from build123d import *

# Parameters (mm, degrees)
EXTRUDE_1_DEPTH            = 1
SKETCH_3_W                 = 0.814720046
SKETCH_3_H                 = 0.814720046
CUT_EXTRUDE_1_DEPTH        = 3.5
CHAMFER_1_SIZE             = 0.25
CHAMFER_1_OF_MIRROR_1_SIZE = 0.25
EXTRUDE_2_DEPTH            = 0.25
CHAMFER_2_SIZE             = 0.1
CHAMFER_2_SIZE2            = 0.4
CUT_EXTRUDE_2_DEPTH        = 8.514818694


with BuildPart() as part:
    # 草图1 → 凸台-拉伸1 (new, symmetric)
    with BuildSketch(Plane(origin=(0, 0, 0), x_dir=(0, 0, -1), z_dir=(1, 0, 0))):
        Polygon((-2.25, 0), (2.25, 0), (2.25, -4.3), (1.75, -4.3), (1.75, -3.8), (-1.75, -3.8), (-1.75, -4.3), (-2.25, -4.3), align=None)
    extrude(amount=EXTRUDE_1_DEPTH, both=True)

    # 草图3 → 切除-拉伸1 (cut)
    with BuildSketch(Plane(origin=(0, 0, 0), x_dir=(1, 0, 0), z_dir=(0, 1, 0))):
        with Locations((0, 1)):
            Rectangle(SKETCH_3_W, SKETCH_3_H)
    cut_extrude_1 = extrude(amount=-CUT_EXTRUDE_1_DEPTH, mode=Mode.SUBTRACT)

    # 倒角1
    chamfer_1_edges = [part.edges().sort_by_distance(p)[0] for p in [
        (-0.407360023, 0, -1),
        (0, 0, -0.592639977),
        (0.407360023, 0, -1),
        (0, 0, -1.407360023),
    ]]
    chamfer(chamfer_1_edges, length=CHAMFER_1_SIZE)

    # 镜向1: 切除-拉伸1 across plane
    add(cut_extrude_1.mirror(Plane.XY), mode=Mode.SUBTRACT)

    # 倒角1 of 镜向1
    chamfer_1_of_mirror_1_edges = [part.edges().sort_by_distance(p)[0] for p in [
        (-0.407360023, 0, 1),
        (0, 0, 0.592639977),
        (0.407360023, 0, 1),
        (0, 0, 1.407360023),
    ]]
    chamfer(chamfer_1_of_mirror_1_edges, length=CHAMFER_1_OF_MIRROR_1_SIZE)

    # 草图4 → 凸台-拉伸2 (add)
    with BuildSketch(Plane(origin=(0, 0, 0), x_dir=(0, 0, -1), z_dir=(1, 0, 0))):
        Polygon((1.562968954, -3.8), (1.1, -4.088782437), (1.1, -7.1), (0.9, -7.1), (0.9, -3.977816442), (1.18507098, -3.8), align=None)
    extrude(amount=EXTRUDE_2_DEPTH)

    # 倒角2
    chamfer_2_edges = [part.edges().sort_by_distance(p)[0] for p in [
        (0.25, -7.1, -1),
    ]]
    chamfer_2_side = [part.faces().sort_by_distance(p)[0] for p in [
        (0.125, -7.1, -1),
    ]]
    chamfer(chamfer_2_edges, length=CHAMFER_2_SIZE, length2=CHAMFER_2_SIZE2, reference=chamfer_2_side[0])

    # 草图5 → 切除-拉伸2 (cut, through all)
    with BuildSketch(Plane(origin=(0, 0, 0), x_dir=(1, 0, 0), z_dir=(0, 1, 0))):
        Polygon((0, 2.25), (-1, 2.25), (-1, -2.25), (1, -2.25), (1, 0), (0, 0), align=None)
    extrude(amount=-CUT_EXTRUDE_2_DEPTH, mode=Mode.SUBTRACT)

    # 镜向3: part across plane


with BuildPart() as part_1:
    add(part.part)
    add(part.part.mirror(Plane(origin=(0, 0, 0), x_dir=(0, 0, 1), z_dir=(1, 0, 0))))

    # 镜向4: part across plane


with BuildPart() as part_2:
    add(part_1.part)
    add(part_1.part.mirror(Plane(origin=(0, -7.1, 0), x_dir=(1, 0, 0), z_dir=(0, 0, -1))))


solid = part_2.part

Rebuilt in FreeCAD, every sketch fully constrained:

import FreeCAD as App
import Part
import Sketcher

V = App.Vector
Q = App.Units.Quantity


def edges_at(feature, points):
    """Names of the edges that pass closest to the given points."""
    edges = feature.Shape.Edges
    near = lambda p: min(range(len(edges)), key=lambda i: edges[i].distToShape(Part.Vertex(*p))[0])
    return sorted({f"Edge{near(p) + 1}" for p in points})


def add_polygon(sketch, points):
    """Adds a closed chain of lines whose ends are joined by coincident constraints."""
    first, n = sketch.GeometryCount, len(points)
    for a, b in zip(points, points[1:] + points[:1]):
        sketch.addGeometry(Part.LineSegment(App.Vector(*a, 0), App.Vector(*b, 0)), False)
    for i in range(n):
        sketch.addConstraint(Sketcher.Constraint("Coincident", first + i, 2, first + (i + 1) % n, 1))

doc = App.newDocument("Part")
body = doc.addObject("PartDesign::Body", "Body")

# Sketch on YZ plane
sketch1 = body.newObject("Sketcher::SketchObject", "Sketch")
sketch1.AttachmentSupport = (doc.getObject("YZ_Plane"), [""])
sketch1.MapMode = "FlatFace"
add_polygon(sketch1, [(0, -2.2), (0, 2.2), (-4.3, 2.2), (-4.3, 1.8), (-3.8, 1.8), (-3.8, -1.8), (-4.3, -1.8), (-4.3, -2.2)])  # lines 0-7
sketch1.addConstraint([
    Sketcher.Constraint("Vertical", 0),
    Sketcher.Constraint("Horizontal", 1),
    Sketcher.Constraint("Vertical", 2),
    Sketcher.Constraint("Horizontal", 3),
    Sketcher.Constraint("Vertical", 4),
    Sketcher.Constraint("Horizontal", 5),
    Sketcher.Constraint("Vertical", 6),
    Sketcher.Constraint("Horizontal", 7),
    Sketcher.Constraint("Symmetric", 0, 2, 7, 2, -1, 1),
    Sketcher.Constraint("Symmetric", 2, 2, 5, 2, -1),
    Sketcher.Constraint("Equal", 5, 2),
    Sketcher.Constraint("DistanceX", 1, 2, 1, 1, Q("4.3 mm")),
    Sketcher.Constraint("DistanceX", 3, 1, 3, 2, Q("0.5 mm")),
    Sketcher.Constraint("DistanceY", 0, 1, 0, 2, Q("4.5 mm")),
])
pad1 = body.newObject("PartDesign::Pad", "Pad")
pad1.Profile = sketch1
pad1.Length = 2
pad1.Midplane = True

# Sketch on XZ plane
sketch2 = body.newObject("Sketcher::SketchObject", "Sketch001")
sketch2.AttachmentSupport = (doc.getObject("XZ_Plane"), [""])
sketch2.MapMode = "FlatFace"
add_polygon(sketch2, [(-0.4, -1.4), (-0.4, -0.6), (0.4, -0.6), (0.4, -1.4)])  # lines 0-3
sketch2.addConstraint([
    Sketcher.Constraint("Vertical", 0),
    Sketcher.Constraint("Horizontal", 1),
    Sketcher.Constraint("Vertical", 2),
    Sketcher.Constraint("Horizontal", 3),
    Sketcher.Constraint("Equal", 3, 0),
    Sketcher.Constraint("DistanceX", 1, 1, 1, 2, Q("0.81472 mm")),
    Sketcher.Constraint("DistanceX", 0, 2, -1, 1, Q("0.40736 mm")),
    Sketcher.Constraint("DistanceY", 0, 2, -1, 1, Q("0.59264 mm")),
])
pocket1 = body.newObject("PartDesign::Pocket", "Pocket")
pocket1.Profile = sketch2
pocket1.Length = 3.5
pocket1.Reversed = True
doc.recompute()

chamfer = body.newObject("PartDesign::Chamfer", "Chamfer")
chamfer.Base = (pocket1, edges_at(pocket1, [
    (-0.407, 0, -1),
    (0, 0, -0.593),
    (0.407, 0, -1),
    (0, 0, -1.407),
]))
chamfer.Size = 0.25
doc.recompute()

mirrored = body.newObject("PartDesign::Mirrored", "Mirrored")
mirrored.Originals = [pocket1]
mirrored.MirrorPlane = (doc.getObject("XY_Plane"), [""])
body.Tip = mirrored
doc.recompute()

chamfer2 = body.newObject("PartDesign::Chamfer", "Chamfer001")
chamfer2.Base = (mirrored, edges_at(mirrored, [
    (-0.407, 0, 1),
    (0, 0, 0.593),
    (0.407, 0, 1),
    (0, 0, 1.407),
]))
chamfer2.Size = 0.25

# Sketch on YZ plane
sketch3 = body.newObject("Sketcher::SketchObject", "Sketch002")
sketch3.AttachmentSupport = (doc.getObject("YZ_Plane"), [""])
sketch3.MapMode = "FlatFace"
add_polygon(sketch3, [(-4.09, -1.1), (-3.8, -1.56), (-3.8, -1.19), (-3.98, -0.9), (-7.1, -0.9), (-7.1, -1.1)])  # lines 0-5
sketch3.addConstraint([
    Sketcher.Constraint("Vertical", 1),
    Sketcher.Constraint("Horizontal", 3),
    Sketcher.Constraint("Vertical", 4),
    Sketcher.Constraint("Horizontal", 5),
    Sketcher.Constraint("Parallel", 0, 2),
    Sketcher.Constraint("DistanceY", 4, 2, 4, 1, Q("0.2 mm")),
    Sketcher.Constraint("DistanceX", 0, 2, -1, 1, Q("3.8 mm")),
    Sketcher.Constraint("DistanceY", 2, 2, -1, 1, Q("0.9 mm")),
    Sketcher.Constraint("DistanceX", 3, 2, -1, 1, Q("7.1 mm")),
    Sketcher.Constraint("Distance", 0, Q("0.545651 mm")),
    Sketcher.Constraint("DistanceX", 3, 2, 3, 1, Q("3.122184 mm")),
    Sketcher.Constraint("DistanceX", 5, 1, 5, 2, Q("3.011218 mm")),
])
pad2 = body.newObject("PartDesign::Pad", "Pad001")
pad2.Profile = sketch3
pad2.Length = 0.25
doc.recompute()

chamfer3 = body.newObject("PartDesign::Chamfer", "Chamfer002")
chamfer3.Base = (pad2, edges_at(pad2, [(0.25, -7.1, -1)]))
chamfer3.ChamferType = "Two distances"
chamfer3.Size = 0.1
chamfer3.Size2 = 0.4
chamfer3.FlipDirection = True

# Sketch on XZ plane
sketch4 = body.newObject("Sketcher::SketchObject", "Sketch003")
sketch4.AttachmentSupport = (doc.getObject("XZ_Plane"), [""])
sketch4.MapMode = "FlatFace"
add_polygon(sketch4, [(0, -2.2), (-1, -2.2), (-1, 2.2), (1, 2.2), (1, 0), (0, 0)])  # lines 0-5
sketch4.addConstraint([
    Sketcher.Constraint("Horizontal", 0),
    Sketcher.Constraint("Vertical", 1),
    Sketcher.Constraint("Horizontal", 2),
    Sketcher.Constraint("Vertical", 3),
    Sketcher.Constraint("Horizontal", 4),
    Sketcher.Constraint("Vertical", 5),
    Sketcher.Constraint("Coincident", 4, 2, -1, 1),
    Sketcher.Constraint("Symmetric", 0, 2, 2, 2, -1, 1),
    Sketcher.Constraint("DistanceX", 0, 2, 0, 1, Q("1 mm")),
    Sketcher.Constraint("DistanceY", 1, 1, 1, 2, Q("4.5 mm")),
])
pocket2 = body.newObject("PartDesign::Pocket", "Pocket001")
pocket2.Profile = sketch4
pocket2.Type = "ThroughAll"
pocket2.Reversed = True
body2 = doc.addObject("PartDesign::Body", "Body001")
doc.recompute()

body2.BaseFeature = body
doc.recompute()

mirroring = doc.addObject("Part::Mirroring", "Mirroring")
mirroring.Source = body
mirroring.Base = V(0, 0, 0)
mirroring.Normal = V(1, 0, 0)
body3 = doc.addObject("PartDesign::Body", "Body002")
body3.BaseFeature = mirroring
boolean = body2.newObject("PartDesign::Boolean", "Boolean")
boolean.Type = "Fuse"
boolean.addObjects([body3])
doc.recompute()
body4 = doc.addObject("PartDesign::Body", "Body003")
doc.recompute()

body4.BaseFeature = body2
doc.recompute()

mirroring2 = doc.addObject("Part::Mirroring", "Mirroring001")
mirroring2.Source = body2
mirroring2.Base = V(0, -7.1, 0)
mirroring2.Normal = V(0, 0, -1)
body5 = doc.addObject("PartDesign::Body", "Body004")
body5.BaseFeature = mirroring2
boolean2 = body4.newObject("PartDesign::Boolean", "Boolean001")
boolean2.Type = "Fuse"
boolean2.addObjects([body5])
doc.recompute()
mirroring.Visibility = False
mirroring2.Visibility = False

doc.recompute()
